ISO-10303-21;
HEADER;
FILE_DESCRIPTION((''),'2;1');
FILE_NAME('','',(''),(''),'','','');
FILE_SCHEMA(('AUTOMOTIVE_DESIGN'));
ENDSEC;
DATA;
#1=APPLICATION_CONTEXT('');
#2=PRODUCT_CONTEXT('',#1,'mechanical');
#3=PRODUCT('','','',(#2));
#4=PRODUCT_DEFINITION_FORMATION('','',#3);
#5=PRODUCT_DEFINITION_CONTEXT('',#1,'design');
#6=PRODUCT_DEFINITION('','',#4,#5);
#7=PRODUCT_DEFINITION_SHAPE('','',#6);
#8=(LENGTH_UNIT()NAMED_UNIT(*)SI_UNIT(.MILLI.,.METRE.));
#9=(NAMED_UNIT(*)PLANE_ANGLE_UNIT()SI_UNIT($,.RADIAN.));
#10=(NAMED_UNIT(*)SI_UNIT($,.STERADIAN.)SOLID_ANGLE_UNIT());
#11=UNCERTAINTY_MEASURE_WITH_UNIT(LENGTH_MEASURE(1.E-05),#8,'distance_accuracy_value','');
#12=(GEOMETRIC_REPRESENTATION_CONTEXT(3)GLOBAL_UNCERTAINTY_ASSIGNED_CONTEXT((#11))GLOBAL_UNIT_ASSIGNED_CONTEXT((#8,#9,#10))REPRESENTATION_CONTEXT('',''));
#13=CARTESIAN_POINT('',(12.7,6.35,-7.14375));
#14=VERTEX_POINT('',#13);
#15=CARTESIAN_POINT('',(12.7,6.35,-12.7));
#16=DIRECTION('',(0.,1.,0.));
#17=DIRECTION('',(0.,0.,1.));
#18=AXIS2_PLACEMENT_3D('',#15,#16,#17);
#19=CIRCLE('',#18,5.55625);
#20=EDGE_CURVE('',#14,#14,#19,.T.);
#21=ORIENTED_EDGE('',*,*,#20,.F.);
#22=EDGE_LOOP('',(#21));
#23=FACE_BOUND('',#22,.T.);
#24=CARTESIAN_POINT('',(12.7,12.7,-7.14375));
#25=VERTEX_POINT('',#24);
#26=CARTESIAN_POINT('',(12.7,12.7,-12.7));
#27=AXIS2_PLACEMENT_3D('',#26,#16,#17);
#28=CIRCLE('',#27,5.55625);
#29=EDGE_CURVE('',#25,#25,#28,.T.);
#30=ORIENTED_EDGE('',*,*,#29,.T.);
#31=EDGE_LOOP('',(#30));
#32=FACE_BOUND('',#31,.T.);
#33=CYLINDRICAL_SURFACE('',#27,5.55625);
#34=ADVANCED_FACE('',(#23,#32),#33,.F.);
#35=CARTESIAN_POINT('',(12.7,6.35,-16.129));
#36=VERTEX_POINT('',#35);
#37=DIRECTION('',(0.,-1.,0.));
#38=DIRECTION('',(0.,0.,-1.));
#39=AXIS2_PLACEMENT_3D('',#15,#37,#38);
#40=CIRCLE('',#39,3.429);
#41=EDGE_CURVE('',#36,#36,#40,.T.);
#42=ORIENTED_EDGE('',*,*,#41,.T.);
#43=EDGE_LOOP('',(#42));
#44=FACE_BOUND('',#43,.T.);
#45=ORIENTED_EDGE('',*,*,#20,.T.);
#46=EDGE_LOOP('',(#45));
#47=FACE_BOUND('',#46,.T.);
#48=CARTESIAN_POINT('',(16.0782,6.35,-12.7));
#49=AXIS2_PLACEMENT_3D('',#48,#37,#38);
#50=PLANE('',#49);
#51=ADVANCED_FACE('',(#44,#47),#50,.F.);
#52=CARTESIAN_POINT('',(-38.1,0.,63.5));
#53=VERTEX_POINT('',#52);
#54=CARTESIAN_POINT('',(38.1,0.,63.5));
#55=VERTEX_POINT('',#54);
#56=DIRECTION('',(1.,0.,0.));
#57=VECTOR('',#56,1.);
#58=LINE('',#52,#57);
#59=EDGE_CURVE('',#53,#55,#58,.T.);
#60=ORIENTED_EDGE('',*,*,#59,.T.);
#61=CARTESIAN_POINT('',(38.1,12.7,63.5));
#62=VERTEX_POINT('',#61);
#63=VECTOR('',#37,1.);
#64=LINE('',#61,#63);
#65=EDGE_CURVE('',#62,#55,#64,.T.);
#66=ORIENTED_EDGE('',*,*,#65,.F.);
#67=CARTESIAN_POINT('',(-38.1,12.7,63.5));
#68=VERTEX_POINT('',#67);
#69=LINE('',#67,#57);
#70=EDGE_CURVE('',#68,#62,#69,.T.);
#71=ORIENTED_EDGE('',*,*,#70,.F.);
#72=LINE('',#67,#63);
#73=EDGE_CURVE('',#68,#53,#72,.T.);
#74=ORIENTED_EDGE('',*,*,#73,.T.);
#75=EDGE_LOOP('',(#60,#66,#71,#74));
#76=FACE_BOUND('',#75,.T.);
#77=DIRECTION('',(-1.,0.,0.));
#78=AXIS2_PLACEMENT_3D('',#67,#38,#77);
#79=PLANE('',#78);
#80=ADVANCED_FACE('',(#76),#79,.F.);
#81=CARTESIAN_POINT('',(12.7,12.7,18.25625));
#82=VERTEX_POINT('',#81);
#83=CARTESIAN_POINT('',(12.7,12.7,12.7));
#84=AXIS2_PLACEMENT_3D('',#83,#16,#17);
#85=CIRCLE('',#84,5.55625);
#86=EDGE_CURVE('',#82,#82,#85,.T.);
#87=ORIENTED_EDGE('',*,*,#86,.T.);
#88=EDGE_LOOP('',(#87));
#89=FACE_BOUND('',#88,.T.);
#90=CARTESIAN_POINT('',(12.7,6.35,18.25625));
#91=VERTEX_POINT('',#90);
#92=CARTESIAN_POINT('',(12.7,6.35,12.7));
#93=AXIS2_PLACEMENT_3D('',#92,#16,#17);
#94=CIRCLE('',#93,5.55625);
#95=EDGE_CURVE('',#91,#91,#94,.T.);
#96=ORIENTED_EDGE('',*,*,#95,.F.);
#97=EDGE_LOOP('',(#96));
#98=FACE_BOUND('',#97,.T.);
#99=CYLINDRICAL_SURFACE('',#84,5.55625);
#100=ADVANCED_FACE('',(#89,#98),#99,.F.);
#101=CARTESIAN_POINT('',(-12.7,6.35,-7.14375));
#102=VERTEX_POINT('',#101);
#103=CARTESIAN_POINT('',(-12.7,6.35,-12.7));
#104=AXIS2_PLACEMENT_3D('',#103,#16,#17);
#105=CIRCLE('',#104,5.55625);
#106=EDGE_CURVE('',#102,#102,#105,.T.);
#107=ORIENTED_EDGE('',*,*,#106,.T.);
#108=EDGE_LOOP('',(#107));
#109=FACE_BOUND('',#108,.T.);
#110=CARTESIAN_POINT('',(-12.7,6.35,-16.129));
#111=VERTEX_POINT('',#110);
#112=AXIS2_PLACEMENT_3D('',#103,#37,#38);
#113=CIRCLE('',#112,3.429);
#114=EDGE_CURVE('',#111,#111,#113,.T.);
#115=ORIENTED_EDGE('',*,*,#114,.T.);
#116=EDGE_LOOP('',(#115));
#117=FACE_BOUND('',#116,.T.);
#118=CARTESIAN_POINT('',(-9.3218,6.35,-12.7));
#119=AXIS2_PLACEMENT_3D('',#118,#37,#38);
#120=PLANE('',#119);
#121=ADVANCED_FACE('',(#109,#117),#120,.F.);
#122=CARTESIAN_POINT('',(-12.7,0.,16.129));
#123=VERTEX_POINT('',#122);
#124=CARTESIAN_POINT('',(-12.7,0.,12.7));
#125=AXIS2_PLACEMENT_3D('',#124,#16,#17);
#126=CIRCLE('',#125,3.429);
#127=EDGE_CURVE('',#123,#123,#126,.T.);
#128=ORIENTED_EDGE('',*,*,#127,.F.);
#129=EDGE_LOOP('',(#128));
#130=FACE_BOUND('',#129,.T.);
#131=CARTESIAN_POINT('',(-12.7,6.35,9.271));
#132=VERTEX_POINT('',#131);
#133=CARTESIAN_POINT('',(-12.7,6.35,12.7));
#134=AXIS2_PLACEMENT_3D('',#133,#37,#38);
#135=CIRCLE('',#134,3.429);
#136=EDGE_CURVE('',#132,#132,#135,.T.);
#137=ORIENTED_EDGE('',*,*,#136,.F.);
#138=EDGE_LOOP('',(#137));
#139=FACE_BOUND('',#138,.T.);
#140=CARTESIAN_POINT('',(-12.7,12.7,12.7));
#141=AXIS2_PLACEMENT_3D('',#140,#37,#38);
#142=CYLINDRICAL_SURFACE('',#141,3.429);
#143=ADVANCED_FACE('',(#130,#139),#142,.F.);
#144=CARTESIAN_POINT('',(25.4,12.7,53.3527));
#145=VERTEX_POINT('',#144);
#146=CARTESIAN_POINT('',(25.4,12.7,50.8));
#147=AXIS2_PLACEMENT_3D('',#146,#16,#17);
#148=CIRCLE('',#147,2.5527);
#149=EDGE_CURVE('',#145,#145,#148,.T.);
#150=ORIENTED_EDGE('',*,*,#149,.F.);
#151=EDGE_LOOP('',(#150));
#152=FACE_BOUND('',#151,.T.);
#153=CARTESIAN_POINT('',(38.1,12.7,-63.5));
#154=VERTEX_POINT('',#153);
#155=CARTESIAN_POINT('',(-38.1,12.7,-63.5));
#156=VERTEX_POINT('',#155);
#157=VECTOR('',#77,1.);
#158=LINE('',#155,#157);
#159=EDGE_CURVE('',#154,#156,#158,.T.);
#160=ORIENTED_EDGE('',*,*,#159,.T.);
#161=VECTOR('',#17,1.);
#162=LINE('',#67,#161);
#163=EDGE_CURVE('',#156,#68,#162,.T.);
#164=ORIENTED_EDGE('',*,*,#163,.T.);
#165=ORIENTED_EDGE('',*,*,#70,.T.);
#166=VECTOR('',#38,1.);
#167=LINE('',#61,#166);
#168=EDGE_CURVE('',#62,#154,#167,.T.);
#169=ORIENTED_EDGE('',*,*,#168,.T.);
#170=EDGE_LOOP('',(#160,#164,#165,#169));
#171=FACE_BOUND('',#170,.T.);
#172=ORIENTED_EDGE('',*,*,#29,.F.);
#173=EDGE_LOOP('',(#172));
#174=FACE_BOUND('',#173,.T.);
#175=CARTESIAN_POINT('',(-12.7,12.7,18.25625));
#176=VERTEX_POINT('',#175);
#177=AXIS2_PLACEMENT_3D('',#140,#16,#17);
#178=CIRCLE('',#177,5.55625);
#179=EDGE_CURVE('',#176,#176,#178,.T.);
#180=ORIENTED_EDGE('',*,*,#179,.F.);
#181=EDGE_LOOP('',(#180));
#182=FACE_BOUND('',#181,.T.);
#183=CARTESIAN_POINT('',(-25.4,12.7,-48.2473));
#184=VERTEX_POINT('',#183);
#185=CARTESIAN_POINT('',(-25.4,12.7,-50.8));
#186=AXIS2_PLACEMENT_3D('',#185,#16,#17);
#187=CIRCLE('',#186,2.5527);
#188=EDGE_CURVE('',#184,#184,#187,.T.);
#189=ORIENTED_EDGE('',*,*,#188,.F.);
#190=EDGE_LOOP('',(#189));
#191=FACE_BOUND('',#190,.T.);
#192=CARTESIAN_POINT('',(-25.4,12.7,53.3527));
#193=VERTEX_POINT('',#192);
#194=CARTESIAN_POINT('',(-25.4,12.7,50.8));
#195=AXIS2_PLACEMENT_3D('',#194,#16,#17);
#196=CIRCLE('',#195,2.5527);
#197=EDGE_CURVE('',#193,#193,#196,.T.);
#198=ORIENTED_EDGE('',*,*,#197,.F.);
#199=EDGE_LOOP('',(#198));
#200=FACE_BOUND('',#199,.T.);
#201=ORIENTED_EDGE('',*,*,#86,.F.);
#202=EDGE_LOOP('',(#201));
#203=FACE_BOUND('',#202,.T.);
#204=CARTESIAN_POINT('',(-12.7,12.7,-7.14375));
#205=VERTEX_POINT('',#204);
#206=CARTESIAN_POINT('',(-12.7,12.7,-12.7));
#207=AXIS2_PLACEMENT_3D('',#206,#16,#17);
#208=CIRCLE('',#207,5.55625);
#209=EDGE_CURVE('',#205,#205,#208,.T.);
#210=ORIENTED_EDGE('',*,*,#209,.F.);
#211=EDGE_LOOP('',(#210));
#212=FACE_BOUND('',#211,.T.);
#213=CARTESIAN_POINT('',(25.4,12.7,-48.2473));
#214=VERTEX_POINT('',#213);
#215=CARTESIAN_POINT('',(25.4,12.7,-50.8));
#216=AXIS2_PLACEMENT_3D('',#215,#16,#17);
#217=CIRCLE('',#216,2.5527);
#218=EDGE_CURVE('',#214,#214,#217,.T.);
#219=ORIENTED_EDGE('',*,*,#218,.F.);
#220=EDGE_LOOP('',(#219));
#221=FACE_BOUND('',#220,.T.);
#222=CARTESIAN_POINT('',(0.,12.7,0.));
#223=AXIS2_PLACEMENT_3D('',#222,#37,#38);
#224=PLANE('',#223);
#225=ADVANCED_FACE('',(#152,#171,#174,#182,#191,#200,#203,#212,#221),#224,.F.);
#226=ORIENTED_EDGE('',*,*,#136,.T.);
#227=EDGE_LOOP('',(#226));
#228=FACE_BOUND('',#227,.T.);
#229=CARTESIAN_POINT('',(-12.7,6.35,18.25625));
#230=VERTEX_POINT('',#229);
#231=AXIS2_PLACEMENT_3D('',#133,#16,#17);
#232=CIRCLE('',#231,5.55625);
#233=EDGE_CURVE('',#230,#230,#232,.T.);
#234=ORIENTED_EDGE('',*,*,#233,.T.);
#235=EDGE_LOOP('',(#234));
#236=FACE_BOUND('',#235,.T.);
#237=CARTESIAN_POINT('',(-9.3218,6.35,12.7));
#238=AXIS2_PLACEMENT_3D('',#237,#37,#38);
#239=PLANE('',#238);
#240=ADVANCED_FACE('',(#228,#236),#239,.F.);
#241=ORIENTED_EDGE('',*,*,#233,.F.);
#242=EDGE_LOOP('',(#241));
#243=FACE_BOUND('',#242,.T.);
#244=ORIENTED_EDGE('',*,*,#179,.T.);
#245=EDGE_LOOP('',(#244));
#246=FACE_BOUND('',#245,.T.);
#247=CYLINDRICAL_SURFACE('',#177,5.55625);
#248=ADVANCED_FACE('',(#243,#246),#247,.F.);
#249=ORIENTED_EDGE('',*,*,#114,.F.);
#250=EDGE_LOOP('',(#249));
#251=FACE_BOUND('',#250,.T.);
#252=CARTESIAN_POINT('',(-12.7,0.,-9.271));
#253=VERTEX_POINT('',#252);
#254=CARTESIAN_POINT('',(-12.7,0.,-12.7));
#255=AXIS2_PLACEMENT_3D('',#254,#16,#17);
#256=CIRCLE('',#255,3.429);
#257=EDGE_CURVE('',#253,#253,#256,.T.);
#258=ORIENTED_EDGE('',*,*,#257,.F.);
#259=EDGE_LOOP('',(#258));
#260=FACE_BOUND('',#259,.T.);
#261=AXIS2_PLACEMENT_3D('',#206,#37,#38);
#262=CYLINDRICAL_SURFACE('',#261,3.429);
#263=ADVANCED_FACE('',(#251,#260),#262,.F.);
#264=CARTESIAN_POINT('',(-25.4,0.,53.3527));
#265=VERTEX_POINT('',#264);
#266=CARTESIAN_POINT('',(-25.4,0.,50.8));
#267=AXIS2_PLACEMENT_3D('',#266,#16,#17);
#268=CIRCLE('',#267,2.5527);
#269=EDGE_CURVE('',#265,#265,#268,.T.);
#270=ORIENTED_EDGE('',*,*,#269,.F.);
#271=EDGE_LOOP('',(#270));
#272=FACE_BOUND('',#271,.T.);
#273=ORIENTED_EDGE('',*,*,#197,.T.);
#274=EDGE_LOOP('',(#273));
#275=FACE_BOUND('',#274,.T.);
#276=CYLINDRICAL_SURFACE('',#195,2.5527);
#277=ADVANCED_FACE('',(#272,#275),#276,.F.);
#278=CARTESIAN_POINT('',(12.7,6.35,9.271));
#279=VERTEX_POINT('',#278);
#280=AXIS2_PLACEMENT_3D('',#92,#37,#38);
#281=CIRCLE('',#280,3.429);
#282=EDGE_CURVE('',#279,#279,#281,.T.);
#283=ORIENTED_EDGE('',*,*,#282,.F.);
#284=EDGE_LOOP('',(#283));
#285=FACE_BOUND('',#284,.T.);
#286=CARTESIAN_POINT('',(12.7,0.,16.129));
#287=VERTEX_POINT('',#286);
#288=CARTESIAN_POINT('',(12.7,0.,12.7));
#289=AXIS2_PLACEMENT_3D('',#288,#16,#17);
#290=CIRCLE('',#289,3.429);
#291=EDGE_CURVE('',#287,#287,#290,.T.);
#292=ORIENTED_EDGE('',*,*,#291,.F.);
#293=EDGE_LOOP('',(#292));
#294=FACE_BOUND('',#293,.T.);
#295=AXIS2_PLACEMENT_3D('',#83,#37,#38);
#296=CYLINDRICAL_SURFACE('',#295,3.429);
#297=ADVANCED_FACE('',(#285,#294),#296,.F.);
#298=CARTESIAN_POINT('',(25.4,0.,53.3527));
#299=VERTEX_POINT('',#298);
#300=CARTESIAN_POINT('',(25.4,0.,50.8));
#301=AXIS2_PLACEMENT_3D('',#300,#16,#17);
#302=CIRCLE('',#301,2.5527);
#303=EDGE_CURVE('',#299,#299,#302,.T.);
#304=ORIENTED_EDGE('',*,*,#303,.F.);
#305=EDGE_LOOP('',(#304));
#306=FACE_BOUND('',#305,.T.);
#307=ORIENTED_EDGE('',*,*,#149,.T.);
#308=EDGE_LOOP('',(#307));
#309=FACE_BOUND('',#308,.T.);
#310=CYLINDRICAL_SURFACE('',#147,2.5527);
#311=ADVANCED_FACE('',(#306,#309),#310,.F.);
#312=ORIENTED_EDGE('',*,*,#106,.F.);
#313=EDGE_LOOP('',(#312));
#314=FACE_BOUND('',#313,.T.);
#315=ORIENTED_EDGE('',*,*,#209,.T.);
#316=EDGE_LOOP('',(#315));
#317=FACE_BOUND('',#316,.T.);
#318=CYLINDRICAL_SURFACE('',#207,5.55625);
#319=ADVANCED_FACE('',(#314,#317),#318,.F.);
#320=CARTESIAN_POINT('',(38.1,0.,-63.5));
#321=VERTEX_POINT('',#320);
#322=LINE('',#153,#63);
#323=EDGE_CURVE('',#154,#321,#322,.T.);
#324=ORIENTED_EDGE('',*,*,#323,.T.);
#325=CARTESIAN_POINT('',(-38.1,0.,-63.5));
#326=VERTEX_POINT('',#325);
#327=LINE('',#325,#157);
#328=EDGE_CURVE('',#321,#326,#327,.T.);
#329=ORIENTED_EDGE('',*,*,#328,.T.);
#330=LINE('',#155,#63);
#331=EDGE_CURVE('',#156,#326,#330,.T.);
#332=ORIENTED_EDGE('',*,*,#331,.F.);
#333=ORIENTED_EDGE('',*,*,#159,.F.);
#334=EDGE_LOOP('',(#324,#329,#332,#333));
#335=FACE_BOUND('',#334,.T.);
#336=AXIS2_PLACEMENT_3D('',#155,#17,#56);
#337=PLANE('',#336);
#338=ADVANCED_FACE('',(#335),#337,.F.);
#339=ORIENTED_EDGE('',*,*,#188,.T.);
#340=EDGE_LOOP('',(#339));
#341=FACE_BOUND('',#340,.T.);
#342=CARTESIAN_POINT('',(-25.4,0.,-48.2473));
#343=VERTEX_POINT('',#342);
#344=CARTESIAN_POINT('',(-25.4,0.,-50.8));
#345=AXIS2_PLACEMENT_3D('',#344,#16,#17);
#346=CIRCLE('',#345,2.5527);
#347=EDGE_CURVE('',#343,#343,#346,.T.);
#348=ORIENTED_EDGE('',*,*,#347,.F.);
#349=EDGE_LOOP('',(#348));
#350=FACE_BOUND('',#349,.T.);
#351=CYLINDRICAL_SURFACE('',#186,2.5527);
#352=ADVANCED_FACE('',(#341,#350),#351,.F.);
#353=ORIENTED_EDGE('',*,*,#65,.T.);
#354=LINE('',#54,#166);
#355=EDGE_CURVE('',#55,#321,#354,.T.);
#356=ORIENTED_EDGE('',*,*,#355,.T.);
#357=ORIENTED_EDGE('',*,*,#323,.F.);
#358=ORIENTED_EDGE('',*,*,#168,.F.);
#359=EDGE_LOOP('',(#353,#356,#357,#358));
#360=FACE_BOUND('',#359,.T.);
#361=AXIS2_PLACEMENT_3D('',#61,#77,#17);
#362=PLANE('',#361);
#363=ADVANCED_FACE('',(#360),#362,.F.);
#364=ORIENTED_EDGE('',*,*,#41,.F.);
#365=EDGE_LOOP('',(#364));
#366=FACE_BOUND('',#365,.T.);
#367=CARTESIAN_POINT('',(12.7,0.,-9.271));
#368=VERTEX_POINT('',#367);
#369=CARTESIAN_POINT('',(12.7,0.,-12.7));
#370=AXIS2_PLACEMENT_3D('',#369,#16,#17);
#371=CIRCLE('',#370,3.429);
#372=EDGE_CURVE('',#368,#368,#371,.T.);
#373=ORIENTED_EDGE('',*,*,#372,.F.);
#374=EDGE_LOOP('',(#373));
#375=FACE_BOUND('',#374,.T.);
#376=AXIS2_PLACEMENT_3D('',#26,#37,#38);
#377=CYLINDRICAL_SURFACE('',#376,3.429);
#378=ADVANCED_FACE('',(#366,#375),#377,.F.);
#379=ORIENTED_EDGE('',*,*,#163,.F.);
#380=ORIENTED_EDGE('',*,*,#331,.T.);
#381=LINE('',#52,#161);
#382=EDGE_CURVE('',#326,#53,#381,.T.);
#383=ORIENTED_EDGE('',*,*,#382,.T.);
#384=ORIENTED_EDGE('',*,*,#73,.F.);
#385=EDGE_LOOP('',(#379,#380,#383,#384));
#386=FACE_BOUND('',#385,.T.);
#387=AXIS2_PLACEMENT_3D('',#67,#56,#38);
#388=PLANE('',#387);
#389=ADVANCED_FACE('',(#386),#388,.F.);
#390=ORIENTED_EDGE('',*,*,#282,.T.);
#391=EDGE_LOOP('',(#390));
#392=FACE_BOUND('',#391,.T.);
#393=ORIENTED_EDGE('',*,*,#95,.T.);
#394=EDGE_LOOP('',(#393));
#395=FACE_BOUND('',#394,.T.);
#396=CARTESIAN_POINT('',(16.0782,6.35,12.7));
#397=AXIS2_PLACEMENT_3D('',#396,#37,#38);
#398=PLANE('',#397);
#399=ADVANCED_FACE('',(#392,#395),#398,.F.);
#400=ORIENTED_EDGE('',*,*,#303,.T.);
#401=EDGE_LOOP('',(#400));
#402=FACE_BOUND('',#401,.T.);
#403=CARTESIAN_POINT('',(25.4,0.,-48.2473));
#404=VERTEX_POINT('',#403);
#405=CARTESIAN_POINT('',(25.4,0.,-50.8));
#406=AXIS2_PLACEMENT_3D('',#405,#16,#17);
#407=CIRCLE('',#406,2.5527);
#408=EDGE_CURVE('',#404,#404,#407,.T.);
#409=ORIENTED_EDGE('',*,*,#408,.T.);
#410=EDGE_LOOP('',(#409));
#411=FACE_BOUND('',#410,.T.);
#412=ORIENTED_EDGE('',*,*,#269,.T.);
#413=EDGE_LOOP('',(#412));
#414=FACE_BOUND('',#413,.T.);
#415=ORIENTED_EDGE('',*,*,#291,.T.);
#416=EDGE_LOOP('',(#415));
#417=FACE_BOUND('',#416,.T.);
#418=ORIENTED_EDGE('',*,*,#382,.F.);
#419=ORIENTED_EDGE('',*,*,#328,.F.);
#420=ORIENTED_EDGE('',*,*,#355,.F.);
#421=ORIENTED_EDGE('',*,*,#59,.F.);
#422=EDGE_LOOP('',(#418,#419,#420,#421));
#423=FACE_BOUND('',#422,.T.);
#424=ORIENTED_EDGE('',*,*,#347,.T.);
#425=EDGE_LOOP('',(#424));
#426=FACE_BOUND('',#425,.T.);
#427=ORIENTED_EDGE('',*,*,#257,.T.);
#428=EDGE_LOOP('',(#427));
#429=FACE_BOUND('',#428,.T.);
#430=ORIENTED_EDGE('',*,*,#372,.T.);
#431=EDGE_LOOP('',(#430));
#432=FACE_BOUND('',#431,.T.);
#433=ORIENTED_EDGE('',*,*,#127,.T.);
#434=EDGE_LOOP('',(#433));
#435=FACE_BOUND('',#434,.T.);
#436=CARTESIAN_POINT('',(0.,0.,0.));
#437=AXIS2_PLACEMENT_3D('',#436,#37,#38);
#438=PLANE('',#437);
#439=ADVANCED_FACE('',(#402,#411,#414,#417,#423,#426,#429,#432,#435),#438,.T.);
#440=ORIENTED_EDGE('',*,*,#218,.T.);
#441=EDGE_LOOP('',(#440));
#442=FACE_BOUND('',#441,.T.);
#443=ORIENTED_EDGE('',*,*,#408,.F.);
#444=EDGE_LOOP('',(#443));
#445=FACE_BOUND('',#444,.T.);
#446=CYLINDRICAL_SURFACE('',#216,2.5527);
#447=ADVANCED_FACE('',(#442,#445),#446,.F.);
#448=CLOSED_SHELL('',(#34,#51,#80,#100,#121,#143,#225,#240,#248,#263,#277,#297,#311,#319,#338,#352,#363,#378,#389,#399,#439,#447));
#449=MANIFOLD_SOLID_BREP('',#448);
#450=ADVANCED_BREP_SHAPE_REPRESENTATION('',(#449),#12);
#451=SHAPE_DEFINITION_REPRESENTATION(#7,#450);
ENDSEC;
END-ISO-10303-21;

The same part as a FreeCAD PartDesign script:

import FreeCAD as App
import Part
import Sketcher

V = App.Vector
Q = App.Units.Quantity

doc = App.newDocument("Part")
body = doc.addObject("PartDesign::Body", "Body")

# Sketch on XZ plane
sketch1 = body.newObject("Sketcher::SketchObject", "Sketch")
sketch1.AttachmentSupport = (doc.getObject("XZ_Plane"), [""])
sketch1.MapMode = "FlatFace"
sketch1.addGeometry([
    Part.LineSegment(V(-38.1, -63.5, 0), V(-38.1, 63.5, 0)),  # 0
    Part.LineSegment(V(-38.1, 63.5, 0), V(38.1, 63.5, 0)),  # 1
    Part.LineSegment(V(38.1, 63.5, 0), V(38.1, -63.5, 0)),  # 2
    Part.LineSegment(V(38.1, -63.5, 0), V(-38.1, -63.5, 0)),  # 3
    Part.Circle(V(-12.7, 12.7, 0), V(0, 0, 1), 3.4),  # 4
    Part.Circle(V(12.7, 12.7, 0), V(0, 0, 1), 3.4),  # 5
    Part.Circle(V(-12.7, -12.7, 0), V(0, 0, 1), 3.4),  # 6
    Part.Circle(V(12.7, -12.7, 0), V(0, 0, 1), 3.4),  # 7
], False)
sketch1.addConstraint([
    Sketcher.Constraint("Coincident", 0, 2, 1, 1),
    Sketcher.Constraint("Coincident", 1, 2, 2, 1),
    Sketcher.Constraint("Coincident", 2, 2, 3, 1),
    Sketcher.Constraint("Coincident", 3, 2, 0, 1),
    Sketcher.Constraint("Vertical", 0),
    Sketcher.Constraint("Horizontal", 1),
    Sketcher.Constraint("Vertical", 2),
    Sketcher.Constraint("Horizontal", 3),
    Sketcher.Constraint("Equal", 4, 5),
    Sketcher.Constraint("Equal", 5, 6),
    Sketcher.Constraint("Equal", 6, 7),
    Sketcher.Constraint("Symmetric", 5, 3, 6, 3, -1, 1),
    Sketcher.Constraint("Symmetric", 4, 3, 7, 3, -1, 1),
    Sketcher.Constraint("Symmetric", 0, 2, 2, 2, -1, 1),
    Sketcher.Constraint("Symmetric", 4, 3, 5, 3, -2),
    Sketcher.Constraint("Diameter", 4, Q("0.27 in")),
    Sketcher.Constraint("DistanceX", 1, 1, 1, 2, Q("3 in")),
    Sketcher.Constraint("DistanceY", 0, 1, 0, 2, Q("5 in")),
    Sketcher.Constraint("DistanceX", 4, 3, 5, 3, Q("1 in")),
    Sketcher.Constraint("DistanceY", 6, 3, 4, 3, Q("1 in")),
])
pad1 = body.newObject("PartDesign::Pad", "Pad")
pad1.Profile = sketch1
pad1.Length = Q("0.5 in")
pad1.Reversed = True

# Sketch on XZ plane
sketch2 = body.newObject("Sketcher::SketchObject", "Sketch001")
sketch2.AttachmentSupport = (doc.getObject("XZ_Plane"), [""])
sketch2.MapMode = "FlatFace"
sketch2.AttachmentOffset = App.Placement(V(0, 0, -0.5 * 25.4), App.Rotation())
sketch2.addGeometry([
    Part.Circle(V(-12.7, -12.7, 0), V(0, 0, 1), 3.4),  # 0
    Part.Circle(V(12.7, -12.7, 0), V(0, 0, 1), 3.4),  # 1
    Part.Circle(V(12.7, 12.7, 0), V(0, 0, 1), 3.4),  # 2
    Part.Circle(V(-12.7, 12.7, 0), V(0, 0, 1), 3.4),  # 3
    Part.Circle(V(-108.2, -58.3, 0), V(0, 0, 1), 3.4),  # 4
], False)
sketch2.addConstraint([
    Sketcher.Constraint("Equal", 0, 1),
    Sketcher.Constraint("Equal", 1, 2),
    Sketcher.Constraint("Equal", 2, 3),
    Sketcher.Constraint("Equal", 3, 4),
    Sketcher.Constraint("Symmetric", 0, 3, 2, 3, -1, 1),
    Sketcher.Constraint("Symmetric", 1, 3, 3, 3, -1, 1),
    Sketcher.Constraint("Symmetric", 0, 3, 1, 3, -2),
    Sketcher.Constraint("Diameter", 0, Q("0.266 in")),
    Sketcher.Constraint("DistanceX", 0, 3, 1, 3, Q("1 in")),
    Sketcher.Constraint("DistanceY", 1, 3, 2, 3, Q("1 in")),
    Sketcher.Constraint("DistanceX", 4, 3, -1, 1, Q("108.226831 mm")),
    Sketcher.Constraint("DistanceY", 4, 3, -1, 1, Q("58.259256 mm")),
])
doc.recompute()
hole = body.newObject("PartDesign::Hole", "Hole")
hole.Profile = sketch2
hole.ThreadType = "None"
hole.Diameter = Q("0.266 in")
hole.DepthType = "ThroughAll"
hole.HoleCutType = "Counterbore"
hole.HoleCutDiameter = Q("0.4375 in")
hole.HoleCutDepth = Q("0.25 in")
hole.Reversed = True

# Sketch on XZ plane
sketch3 = body.newObject("Sketcher::SketchObject", "Sketch002")
sketch3.AttachmentSupport = (doc.getObject("XZ_Plane"), [""])
sketch3.MapMode = "FlatFace"
sketch3.AttachmentOffset = App.Placement(V(0, 0, -0.5 * 25.4), App.Rotation())
sketch3.addGeometry([
    Part.Circle(V(25.4, -50.8, 0), V(0, 0, 1), 2.6),
    Part.Circle(V(-25.4, -50.8, 0), V(0, 0, 1), 2.6),
    Part.Circle(V(-25.4, 50.8, 0), V(0, 0, 1), 2.6),
    Part.Circle(V(25.4, 50.8, 0), V(0, 0, 1), 2.6),
], False)
sketch3.addConstraint([
    Sketcher.Constraint("Equal", 0, 1),
    Sketcher.Constraint("Equal", 1, 2),
    Sketcher.Constraint("Equal", 2, 3),
    Sketcher.Constraint("Symmetric", 0, 3, 2, 3, -1, 1),
    Sketcher.Constraint("Symmetric", 1, 3, 3, 3, -1, 1),
    Sketcher.Constraint("Symmetric", 0, 3, 1, 3, -2),
    Sketcher.Constraint("Diameter", 0, Q("0.201 in")),
    Sketcher.Constraint("DistanceX", -1, 1, 0, 3, Q("1 in")),
    Sketcher.Constraint("DistanceY", 0, 3, -1, 1, Q("2 in")),
])
doc.recompute()
hole2 = body.newObject("PartDesign::Hole", "Hole001")
hole2.Profile = sketch3
hole2.ThreadType = "None"
hole2.Diameter = Q("0.201 in")
hole2.DepthType = "ThroughAll"
hole2.Reversed = True

doc.recompute()
